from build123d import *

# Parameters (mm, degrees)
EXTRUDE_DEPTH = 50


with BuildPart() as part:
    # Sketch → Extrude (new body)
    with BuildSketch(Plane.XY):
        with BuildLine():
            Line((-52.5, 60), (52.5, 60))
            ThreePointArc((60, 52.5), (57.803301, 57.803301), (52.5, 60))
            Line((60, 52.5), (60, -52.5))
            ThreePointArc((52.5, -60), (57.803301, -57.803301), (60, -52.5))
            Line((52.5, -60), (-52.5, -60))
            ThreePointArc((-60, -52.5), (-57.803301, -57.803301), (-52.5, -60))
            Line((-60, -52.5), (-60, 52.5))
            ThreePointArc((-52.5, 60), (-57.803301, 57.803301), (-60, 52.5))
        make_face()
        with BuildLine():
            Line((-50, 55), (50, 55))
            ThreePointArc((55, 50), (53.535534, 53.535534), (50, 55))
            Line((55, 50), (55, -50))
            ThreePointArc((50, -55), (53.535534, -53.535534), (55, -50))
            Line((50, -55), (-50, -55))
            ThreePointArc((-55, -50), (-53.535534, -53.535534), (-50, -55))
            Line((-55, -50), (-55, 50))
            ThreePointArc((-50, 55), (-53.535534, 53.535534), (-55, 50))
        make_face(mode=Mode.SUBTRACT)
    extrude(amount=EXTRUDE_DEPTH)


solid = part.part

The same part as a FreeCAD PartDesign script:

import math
import FreeCAD as App
import Part
import Sketcher

V = App.Vector

doc = App.newDocument("Part")
params = doc.addObject("Spreadsheet::Sheet", "Params")
for row, (alias, value) in enumerate([
    ("sketch1_radius", "5 mm"),
    ("sketch1_radius2", "7.5 mm"),
    ("sketch1_width", "105 mm"),
    ("sketch1_width2", "100 mm"),
    ("pad1_length", "50 mm"),
], start=1):
    params.set(f"A{row}", alias)
    params.set(f"B{row}", "=" + value)
    params.setAlias(f"B{row}", alias)

body = doc.addObject("PartDesign::Body", "Body")

sketch1 = doc.addObject("Sketcher::SketchObject", "Sketch")
body.addObject(sketch1)
sketch1.AttachmentSupport = (doc.XY_Plane, [""])
sketch1.MapMode = "FlatFace"
sketch1.addGeometry([
    Part.LineSegment(V(52.5, 60, 0), V(-52.5, 60, 0)),
    Part.ArcOfCircle(Part.Circle(V(-52.5, 52.5, 0), V(0, 0, 1), 7.5), math.radians(90), math.radians(180)),
    Part.LineSegment(V(-60, 52.5, 0), V(-60, -52.5, 0)),
    Part.ArcOfCircle(Part.Circle(V(-52.5, -52.5, 0), V(0, 0, 1), 7.5), math.radians(180), math.radians(270)),
    Part.LineSegment(V(-52.5, -60, 0), V(52.5, -60, 0)),
    Part.ArcOfCircle(Part.Circle(V(52.5, -52.5, 0), V(0, 0, 1), 7.5), math.radians(-90), math.radians(0)),
    Part.LineSegment(V(60, -52.5, 0), V(60, 52.5, 0)),
    Part.ArcOfCircle(Part.Circle(V(52.5, 52.5, 0), V(0, 0, 1), 7.5), math.radians(0), math.radians(90)),
    Part.LineSegment(V(-50, 55, 0), V(50, 55, 0)),
    Part.ArcOfCircle(Part.Circle(V(50, 50, 0), V(0, 0, 1), 5), math.radians(0), math.radians(90)),
    Part.LineSegment(V(55, 50, 0), V(55, -50, 0)),
    Part.ArcOfCircle(Part.Circle(V(50, -50, 0), V(0, 0, 1), 5), math.radians(-90), math.radians(0)),
    Part.LineSegment(V(50, -55, 0), V(-50, -55, 0)),
    Part.ArcOfCircle(Part.Circle(V(-50, -50, 0), V(0, 0, 1), 5), math.radians(180), math.radians(270)),
    Part.LineSegment(V(-55, -50, 0), V(-55, 50, 0)),
    Part.ArcOfCircle(Part.Circle(V(-50, 50, 0), V(0, 0, 1), 5), math.radians(90), math.radians(180)),
], False)
sketch1.addConstraint([
    Sketcher.Constraint("Tangent", 0, 2, 1, 1),
    Sketcher.Constraint("Tangent", 1, 2, 2, 1),
    Sketcher.Constraint("Tangent", 2, 2, 3, 1),
    Sketcher.Constraint("Tangent", 3, 2, 4, 1),
    Sketcher.Constraint("Tangent", 4, 2, 5, 1),
    Sketcher.Constraint("Tangent", 5, 2, 6, 1),
    Sketcher.Constraint("Tangent", 6, 2, 7, 1),
    Sketcher.Constraint("Tangent", 7, 2, 0, 1),
    Sketcher.Constraint("Tangent", 8, 2, 9, 2),
    Sketcher.Constraint("Tangent", 9, 1, 10, 1),
    Sketcher.Constraint("Tangent", 10, 2, 11, 2),
    Sketcher.Constraint("Tangent", 11, 1, 12, 1),
    Sketcher.Constraint("Tangent", 12, 2, 13, 2),
    Sketcher.Constraint("Tangent", 13, 1, 14, 1),
    Sketcher.Constraint("Tangent", 14, 2, 15, 2),
    Sketcher.Constraint("Tangent", 15, 1, 8, 1),
    Sketcher.Constraint("Horizontal", 0),
    Sketcher.Constraint("Vertical", 2),
    Sketcher.Constraint("Horizontal", 4),
    Sketcher.Constraint("Vertical", 6),
    Sketcher.Constraint("Horizontal", 8),
    Sketcher.Constraint("Vertical", 10),
    Sketcher.Constraint("Horizontal", 12),
    Sketcher.Constraint("Vertical", 14),
    Sketcher.Constraint("Equal", 1, 3),
    Sketcher.Constraint("Equal", 3, 5),
    Sketcher.Constraint("Equal", 5, 7),
    Sketcher.Constraint("Equal", 9, 11),
    Sketcher.Constraint("Equal", 11, 13),
    Sketcher.Constraint("Equal", 13, 15),
    Sketcher.Constraint("Symmetric", 1, 3, 5, 3, -1, 1),
    Sketcher.Constraint("Symmetric", 9, 3, 13, 3, -1, 1),
    Sketcher.Constraint("Equal", 4, 2),
    Sketcher.Constraint("Equal", 12, 10),
    Sketcher.Constraint("Radius", 9, 5.0),
    Sketcher.Constraint("Radius", 1, 7.5),
    Sketcher.Constraint("DistanceX", 0, 2, 0, 1, 105.0),
    Sketcher.Constraint("DistanceX", 8, 1, 8, 2, 100.0),
])
sketch1.setExpression("Constraints[34]", "Params.sketch1_radius")
sketch1.setExpression("Constraints[35]", "Params.sketch1_radius2")
sketch1.setExpression("Constraints[36]", "Params.sketch1_width")
sketch1.setExpression("Constraints[37]", "Params.sketch1_width2")
pad1 = doc.addObject("PartDesign::Pad", "Pad")
body.addObject(pad1)
pad1.Profile = sketch1
pad1.setExpression("Length", "Params.pad1_length")

doc.recompute()
